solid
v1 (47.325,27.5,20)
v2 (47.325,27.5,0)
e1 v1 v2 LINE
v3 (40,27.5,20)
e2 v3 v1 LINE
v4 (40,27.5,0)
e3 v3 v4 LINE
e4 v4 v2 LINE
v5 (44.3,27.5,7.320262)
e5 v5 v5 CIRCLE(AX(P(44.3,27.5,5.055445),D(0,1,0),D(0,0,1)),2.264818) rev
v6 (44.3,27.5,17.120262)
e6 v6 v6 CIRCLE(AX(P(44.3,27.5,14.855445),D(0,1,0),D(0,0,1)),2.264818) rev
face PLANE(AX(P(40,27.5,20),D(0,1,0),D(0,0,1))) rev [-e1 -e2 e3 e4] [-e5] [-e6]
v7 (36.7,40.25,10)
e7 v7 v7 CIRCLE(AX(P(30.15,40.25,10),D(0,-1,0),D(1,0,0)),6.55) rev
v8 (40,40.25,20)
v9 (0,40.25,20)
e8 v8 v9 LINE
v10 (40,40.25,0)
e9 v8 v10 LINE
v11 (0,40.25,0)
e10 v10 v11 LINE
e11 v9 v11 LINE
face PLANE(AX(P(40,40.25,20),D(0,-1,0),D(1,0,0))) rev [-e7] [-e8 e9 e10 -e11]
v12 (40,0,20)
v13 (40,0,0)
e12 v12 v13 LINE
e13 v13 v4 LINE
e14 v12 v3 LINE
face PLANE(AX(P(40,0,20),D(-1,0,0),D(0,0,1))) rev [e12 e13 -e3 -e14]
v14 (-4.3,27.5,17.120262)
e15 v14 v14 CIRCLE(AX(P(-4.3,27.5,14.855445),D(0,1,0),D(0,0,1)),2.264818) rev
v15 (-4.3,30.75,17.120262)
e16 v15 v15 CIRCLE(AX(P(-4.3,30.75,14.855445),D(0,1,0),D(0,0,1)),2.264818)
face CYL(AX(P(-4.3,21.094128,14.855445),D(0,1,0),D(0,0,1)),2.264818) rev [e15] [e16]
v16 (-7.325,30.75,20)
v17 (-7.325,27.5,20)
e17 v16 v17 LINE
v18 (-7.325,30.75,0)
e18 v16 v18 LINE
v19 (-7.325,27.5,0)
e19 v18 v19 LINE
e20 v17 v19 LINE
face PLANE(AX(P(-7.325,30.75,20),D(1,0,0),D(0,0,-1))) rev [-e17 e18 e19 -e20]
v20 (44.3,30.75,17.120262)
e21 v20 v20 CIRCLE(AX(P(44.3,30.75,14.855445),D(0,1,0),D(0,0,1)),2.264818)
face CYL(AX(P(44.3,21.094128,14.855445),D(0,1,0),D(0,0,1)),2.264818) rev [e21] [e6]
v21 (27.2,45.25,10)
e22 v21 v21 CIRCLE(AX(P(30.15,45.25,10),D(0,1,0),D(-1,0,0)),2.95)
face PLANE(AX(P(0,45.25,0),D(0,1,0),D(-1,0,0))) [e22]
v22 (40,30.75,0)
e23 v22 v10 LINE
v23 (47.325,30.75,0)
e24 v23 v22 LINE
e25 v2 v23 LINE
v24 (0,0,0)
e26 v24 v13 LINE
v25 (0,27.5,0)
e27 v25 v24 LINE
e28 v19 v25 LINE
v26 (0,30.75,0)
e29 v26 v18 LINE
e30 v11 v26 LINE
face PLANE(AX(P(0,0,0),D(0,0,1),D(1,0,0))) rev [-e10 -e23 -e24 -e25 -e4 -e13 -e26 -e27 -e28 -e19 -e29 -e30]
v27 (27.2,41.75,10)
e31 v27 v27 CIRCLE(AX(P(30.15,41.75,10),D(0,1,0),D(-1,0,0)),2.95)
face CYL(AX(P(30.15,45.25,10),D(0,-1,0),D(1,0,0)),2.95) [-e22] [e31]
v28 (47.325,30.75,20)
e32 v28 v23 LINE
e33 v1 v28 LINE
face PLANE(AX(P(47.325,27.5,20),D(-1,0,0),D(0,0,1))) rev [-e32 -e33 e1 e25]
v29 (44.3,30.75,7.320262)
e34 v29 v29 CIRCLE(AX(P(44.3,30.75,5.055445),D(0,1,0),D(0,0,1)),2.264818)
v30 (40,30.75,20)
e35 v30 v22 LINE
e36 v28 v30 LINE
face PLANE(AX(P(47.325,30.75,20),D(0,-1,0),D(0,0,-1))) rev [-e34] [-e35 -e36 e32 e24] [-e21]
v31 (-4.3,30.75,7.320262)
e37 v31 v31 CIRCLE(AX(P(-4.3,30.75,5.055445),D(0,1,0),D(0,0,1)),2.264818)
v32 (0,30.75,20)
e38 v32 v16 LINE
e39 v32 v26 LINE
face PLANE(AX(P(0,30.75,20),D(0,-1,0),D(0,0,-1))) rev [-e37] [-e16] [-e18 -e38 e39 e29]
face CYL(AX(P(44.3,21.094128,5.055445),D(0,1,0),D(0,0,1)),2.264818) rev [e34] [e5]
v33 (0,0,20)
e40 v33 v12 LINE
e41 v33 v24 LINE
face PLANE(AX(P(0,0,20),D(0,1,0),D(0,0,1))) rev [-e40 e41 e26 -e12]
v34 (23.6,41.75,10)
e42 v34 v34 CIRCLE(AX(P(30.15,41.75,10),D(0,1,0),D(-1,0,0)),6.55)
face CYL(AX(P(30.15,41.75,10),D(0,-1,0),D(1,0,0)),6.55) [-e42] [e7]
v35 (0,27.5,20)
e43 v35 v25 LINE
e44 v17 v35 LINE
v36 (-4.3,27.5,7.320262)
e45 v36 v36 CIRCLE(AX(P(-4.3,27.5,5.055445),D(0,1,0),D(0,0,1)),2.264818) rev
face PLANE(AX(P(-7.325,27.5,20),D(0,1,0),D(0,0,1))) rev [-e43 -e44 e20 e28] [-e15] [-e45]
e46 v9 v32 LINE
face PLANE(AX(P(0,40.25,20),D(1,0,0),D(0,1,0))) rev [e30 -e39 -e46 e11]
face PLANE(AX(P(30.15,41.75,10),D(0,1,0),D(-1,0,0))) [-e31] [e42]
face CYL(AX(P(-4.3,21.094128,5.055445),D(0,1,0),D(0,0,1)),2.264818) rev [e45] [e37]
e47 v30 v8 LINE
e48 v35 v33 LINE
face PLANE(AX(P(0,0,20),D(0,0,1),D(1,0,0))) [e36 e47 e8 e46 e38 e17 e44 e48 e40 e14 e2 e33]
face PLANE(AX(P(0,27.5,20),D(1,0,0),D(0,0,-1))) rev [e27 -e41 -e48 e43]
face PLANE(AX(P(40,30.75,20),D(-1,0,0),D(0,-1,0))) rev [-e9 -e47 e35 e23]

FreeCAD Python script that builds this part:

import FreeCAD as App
import Part
import Sketcher
from FreeCAD import Vector


def add_polygon(sketch, points):
    """Adds a closed chain of lines whose ends are joined by coincident constraints."""
    first, n = sketch.GeometryCount, len(points)
    for a, b in zip(points, points[1:] + points[:1]):
        sketch.addGeometry(Part.LineSegment(App.Vector(*a, 0), App.Vector(*b, 0)), False)
    for i in range(n):
        sketch.addConstraint(Sketcher.Constraint("Coincident", first + i, 2, first + (i + 1) % n, 1))

doc = App.newDocument("Part")
body = doc.addObject("PartDesign::Body", "Body")

# Sketch on XY plane
sketch1 = doc.addObject("Sketcher::SketchObject", "Sketch")
body.addObject(sketch1)
sketch1.AttachmentSupport = (doc.XY_Plane, [""])
sketch1.MapMode = "FlatFace"
add_polygon(sketch1, [(0, 0), (40, 0), (40, 27.5), (47.325, 27.5), (47.325, 30.75), (40, 30.75), (40, 40.25), (0, 40.25), (0, 30.75), (-7.325, 30.75), (-7.325, 27.5), (0, 27.5)])  # lines 0-11
sketch1.addConstraint([
    Sketcher.Constraint("Horizontal", 0),
    Sketcher.Constraint("Vertical", 1),
    Sketcher.Constraint("Horizontal", 2),
    Sketcher.Constraint("Vertical", 3),
    Sketcher.Constraint("Horizontal", 4),
    Sketcher.Constraint("Vertical", 5),
    Sketcher.Constraint("Horizontal", 6),
    Sketcher.Constraint("Vertical", 7),
    Sketcher.Constraint("Horizontal", 8),
    Sketcher.Constraint("Vertical", 9),
    Sketcher.Constraint("Horizontal", 10),
    Sketcher.Constraint("Vertical", 11),
    Sketcher.Constraint("Coincident", 11, 2, -1, 1),
    Sketcher.Constraint("PointOnObject", 6, 2, -2),
    Sketcher.Constraint("Horizontal", 4, 2, 7, 2),
    Sketcher.Constraint("Horizontal", 2, 2, 9, 2),
    Sketcher.Constraint("Vertical", 1, 2, 4, 2),
    Sketcher.Constraint("Equal", 4, 8),
    Sketcher.Constraint("DistanceX", 0, 1, 0, 2, 40.0),
    Sketcher.Constraint("DistanceY", 1, 1, 1, 2, 27.5),
    Sketcher.Constraint("DistanceY", 5, 1, 5, 2, 9.5),
    Sketcher.Constraint("DistanceY", 3, 1, 3, 2, 3.25),
    Sketcher.Constraint("DistanceX", 2, 1, 2, 2, 7.325),
])
pad1 = doc.addObject("PartDesign::Pad", "Pad")
body.addObject(pad1)
pad1.Profile = sketch1
pad1.Length = 20

# Sketch on XZ plane
sketch2 = doc.addObject("Sketcher::SketchObject", "Sketch001")
body.addObject(sketch2)
sketch2.AttachmentSupport = (doc.XZ_Plane, [""])
sketch2.MapMode = "FlatFace"
sketch2.AttachmentOffset = App.Placement(Vector(0, 0, -30.75), App.Rotation())
sketch2.addGeometry([
    Part.Circle(Vector(-4.3, 5.055445, 0), Vector(0, 0, 1), 2.264818),
    Part.Circle(Vector(-4.3, 14.855445, 0), Vector(0, 0, 1), 2.264818),
    Part.Circle(Vector(44.3, 14.855445, 0), Vector(0, 0, 1), 2.264818),
    Part.Circle(Vector(44.3, 5.055445, 0), Vector(0, 0, 1), 2.264818),
], False)
sketch2.addConstraint([
    Sketcher.Constraint("Equal", 0, 1),
    Sketcher.Constraint("Equal", 1, 2),
    Sketcher.Constraint("Equal", 2, 3),
    Sketcher.Constraint("Horizontal", 1, 3, 2, 3),
    Sketcher.Constraint("Horizontal", 0, 3, 3, 3),
    Sketcher.Constraint("Vertical", 0, 3, 1, 3),
    Sketcher.Constraint("Vertical", 2, 3, 3, 3),
    Sketcher.Constraint("DistanceX", 0, 3, -1, 1, 4.3),
    Sketcher.Constraint("DistanceX", -1, 1, 2, 3, 44.3),
    Sketcher.Constraint("DistanceY", 0, 3, 1, 3, 9.8),
    Sketcher.Constraint("Diameter", 0, 4.529635),
    Sketcher.Constraint("DistanceY", -1, 1, 0, 3, 5.055445),
])
pocket1 = doc.addObject("PartDesign::Pocket", "Pocket")
body.addObject(pocket1)
pocket1.Profile = sketch2
pocket1.Length = 3.25
pocket1.Reversed = True

# Sketch on XZ plane
sketch3 = doc.addObject("Sketcher::SketchObject", "Sketch002")
body.addObject(sketch3)
sketch3.AttachmentSupport = (doc.XZ_Plane, [""])
sketch3.MapMode = "FlatFace"
sketch3.AttachmentOffset = App.Placement(Vector(0, 0, -40.25), App.Rotation())
sketch3.addGeometry(Part.Circle(Vector(30.15, 10, 0), Vector(0, 0, 1), 2.95), False)
sketch3.addConstraint([
    Sketcher.Constraint("Diameter", 0, 5.9),
    Sketcher.Constraint("DistanceY", -1, 1, 0, 3, 10.0),
    Sketcher.Constraint("DistanceX", -1, 1, 0, 3, 30.15),
])
pad2 = doc.addObject("PartDesign::Pad", "Pad001")
body.addObject(pad2)
pad2.Profile = sketch3
pad2.Length = 5
pad2.Reversed = True

# Sketch on XZ plane
sketch4 = doc.addObject("Sketcher::SketchObject", "Sketch003")
body.addObject(sketch4)
sketch4.AttachmentSupport = (doc.XZ_Plane, [""])
sketch4.MapMode = "FlatFace"
sketch4.AttachmentOffset = App.Placement(Vector(0, 0, -40.25), App.Rotation())
sketch4.addGeometry(Part.Circle(Vector(30.15, 10, 0), Vector(0, 0, 1), 6.55), False)
sketch4.addConstraint([
    Sketcher.Constraint("Diameter", 0, 13.1),
    Sketcher.Constraint("DistanceY", -1, 1, 0, 3, 10.0),
    Sketcher.Constraint("DistanceX", -1, 1, 0, 3, 30.15),
])
pad3 = doc.addObject("PartDesign::Pad", "Pad002")
body.addObject(pad3)
pad3.Profile = sketch4
pad3.Length = 1.5
pad3.Reversed = True

doc.recompute()
